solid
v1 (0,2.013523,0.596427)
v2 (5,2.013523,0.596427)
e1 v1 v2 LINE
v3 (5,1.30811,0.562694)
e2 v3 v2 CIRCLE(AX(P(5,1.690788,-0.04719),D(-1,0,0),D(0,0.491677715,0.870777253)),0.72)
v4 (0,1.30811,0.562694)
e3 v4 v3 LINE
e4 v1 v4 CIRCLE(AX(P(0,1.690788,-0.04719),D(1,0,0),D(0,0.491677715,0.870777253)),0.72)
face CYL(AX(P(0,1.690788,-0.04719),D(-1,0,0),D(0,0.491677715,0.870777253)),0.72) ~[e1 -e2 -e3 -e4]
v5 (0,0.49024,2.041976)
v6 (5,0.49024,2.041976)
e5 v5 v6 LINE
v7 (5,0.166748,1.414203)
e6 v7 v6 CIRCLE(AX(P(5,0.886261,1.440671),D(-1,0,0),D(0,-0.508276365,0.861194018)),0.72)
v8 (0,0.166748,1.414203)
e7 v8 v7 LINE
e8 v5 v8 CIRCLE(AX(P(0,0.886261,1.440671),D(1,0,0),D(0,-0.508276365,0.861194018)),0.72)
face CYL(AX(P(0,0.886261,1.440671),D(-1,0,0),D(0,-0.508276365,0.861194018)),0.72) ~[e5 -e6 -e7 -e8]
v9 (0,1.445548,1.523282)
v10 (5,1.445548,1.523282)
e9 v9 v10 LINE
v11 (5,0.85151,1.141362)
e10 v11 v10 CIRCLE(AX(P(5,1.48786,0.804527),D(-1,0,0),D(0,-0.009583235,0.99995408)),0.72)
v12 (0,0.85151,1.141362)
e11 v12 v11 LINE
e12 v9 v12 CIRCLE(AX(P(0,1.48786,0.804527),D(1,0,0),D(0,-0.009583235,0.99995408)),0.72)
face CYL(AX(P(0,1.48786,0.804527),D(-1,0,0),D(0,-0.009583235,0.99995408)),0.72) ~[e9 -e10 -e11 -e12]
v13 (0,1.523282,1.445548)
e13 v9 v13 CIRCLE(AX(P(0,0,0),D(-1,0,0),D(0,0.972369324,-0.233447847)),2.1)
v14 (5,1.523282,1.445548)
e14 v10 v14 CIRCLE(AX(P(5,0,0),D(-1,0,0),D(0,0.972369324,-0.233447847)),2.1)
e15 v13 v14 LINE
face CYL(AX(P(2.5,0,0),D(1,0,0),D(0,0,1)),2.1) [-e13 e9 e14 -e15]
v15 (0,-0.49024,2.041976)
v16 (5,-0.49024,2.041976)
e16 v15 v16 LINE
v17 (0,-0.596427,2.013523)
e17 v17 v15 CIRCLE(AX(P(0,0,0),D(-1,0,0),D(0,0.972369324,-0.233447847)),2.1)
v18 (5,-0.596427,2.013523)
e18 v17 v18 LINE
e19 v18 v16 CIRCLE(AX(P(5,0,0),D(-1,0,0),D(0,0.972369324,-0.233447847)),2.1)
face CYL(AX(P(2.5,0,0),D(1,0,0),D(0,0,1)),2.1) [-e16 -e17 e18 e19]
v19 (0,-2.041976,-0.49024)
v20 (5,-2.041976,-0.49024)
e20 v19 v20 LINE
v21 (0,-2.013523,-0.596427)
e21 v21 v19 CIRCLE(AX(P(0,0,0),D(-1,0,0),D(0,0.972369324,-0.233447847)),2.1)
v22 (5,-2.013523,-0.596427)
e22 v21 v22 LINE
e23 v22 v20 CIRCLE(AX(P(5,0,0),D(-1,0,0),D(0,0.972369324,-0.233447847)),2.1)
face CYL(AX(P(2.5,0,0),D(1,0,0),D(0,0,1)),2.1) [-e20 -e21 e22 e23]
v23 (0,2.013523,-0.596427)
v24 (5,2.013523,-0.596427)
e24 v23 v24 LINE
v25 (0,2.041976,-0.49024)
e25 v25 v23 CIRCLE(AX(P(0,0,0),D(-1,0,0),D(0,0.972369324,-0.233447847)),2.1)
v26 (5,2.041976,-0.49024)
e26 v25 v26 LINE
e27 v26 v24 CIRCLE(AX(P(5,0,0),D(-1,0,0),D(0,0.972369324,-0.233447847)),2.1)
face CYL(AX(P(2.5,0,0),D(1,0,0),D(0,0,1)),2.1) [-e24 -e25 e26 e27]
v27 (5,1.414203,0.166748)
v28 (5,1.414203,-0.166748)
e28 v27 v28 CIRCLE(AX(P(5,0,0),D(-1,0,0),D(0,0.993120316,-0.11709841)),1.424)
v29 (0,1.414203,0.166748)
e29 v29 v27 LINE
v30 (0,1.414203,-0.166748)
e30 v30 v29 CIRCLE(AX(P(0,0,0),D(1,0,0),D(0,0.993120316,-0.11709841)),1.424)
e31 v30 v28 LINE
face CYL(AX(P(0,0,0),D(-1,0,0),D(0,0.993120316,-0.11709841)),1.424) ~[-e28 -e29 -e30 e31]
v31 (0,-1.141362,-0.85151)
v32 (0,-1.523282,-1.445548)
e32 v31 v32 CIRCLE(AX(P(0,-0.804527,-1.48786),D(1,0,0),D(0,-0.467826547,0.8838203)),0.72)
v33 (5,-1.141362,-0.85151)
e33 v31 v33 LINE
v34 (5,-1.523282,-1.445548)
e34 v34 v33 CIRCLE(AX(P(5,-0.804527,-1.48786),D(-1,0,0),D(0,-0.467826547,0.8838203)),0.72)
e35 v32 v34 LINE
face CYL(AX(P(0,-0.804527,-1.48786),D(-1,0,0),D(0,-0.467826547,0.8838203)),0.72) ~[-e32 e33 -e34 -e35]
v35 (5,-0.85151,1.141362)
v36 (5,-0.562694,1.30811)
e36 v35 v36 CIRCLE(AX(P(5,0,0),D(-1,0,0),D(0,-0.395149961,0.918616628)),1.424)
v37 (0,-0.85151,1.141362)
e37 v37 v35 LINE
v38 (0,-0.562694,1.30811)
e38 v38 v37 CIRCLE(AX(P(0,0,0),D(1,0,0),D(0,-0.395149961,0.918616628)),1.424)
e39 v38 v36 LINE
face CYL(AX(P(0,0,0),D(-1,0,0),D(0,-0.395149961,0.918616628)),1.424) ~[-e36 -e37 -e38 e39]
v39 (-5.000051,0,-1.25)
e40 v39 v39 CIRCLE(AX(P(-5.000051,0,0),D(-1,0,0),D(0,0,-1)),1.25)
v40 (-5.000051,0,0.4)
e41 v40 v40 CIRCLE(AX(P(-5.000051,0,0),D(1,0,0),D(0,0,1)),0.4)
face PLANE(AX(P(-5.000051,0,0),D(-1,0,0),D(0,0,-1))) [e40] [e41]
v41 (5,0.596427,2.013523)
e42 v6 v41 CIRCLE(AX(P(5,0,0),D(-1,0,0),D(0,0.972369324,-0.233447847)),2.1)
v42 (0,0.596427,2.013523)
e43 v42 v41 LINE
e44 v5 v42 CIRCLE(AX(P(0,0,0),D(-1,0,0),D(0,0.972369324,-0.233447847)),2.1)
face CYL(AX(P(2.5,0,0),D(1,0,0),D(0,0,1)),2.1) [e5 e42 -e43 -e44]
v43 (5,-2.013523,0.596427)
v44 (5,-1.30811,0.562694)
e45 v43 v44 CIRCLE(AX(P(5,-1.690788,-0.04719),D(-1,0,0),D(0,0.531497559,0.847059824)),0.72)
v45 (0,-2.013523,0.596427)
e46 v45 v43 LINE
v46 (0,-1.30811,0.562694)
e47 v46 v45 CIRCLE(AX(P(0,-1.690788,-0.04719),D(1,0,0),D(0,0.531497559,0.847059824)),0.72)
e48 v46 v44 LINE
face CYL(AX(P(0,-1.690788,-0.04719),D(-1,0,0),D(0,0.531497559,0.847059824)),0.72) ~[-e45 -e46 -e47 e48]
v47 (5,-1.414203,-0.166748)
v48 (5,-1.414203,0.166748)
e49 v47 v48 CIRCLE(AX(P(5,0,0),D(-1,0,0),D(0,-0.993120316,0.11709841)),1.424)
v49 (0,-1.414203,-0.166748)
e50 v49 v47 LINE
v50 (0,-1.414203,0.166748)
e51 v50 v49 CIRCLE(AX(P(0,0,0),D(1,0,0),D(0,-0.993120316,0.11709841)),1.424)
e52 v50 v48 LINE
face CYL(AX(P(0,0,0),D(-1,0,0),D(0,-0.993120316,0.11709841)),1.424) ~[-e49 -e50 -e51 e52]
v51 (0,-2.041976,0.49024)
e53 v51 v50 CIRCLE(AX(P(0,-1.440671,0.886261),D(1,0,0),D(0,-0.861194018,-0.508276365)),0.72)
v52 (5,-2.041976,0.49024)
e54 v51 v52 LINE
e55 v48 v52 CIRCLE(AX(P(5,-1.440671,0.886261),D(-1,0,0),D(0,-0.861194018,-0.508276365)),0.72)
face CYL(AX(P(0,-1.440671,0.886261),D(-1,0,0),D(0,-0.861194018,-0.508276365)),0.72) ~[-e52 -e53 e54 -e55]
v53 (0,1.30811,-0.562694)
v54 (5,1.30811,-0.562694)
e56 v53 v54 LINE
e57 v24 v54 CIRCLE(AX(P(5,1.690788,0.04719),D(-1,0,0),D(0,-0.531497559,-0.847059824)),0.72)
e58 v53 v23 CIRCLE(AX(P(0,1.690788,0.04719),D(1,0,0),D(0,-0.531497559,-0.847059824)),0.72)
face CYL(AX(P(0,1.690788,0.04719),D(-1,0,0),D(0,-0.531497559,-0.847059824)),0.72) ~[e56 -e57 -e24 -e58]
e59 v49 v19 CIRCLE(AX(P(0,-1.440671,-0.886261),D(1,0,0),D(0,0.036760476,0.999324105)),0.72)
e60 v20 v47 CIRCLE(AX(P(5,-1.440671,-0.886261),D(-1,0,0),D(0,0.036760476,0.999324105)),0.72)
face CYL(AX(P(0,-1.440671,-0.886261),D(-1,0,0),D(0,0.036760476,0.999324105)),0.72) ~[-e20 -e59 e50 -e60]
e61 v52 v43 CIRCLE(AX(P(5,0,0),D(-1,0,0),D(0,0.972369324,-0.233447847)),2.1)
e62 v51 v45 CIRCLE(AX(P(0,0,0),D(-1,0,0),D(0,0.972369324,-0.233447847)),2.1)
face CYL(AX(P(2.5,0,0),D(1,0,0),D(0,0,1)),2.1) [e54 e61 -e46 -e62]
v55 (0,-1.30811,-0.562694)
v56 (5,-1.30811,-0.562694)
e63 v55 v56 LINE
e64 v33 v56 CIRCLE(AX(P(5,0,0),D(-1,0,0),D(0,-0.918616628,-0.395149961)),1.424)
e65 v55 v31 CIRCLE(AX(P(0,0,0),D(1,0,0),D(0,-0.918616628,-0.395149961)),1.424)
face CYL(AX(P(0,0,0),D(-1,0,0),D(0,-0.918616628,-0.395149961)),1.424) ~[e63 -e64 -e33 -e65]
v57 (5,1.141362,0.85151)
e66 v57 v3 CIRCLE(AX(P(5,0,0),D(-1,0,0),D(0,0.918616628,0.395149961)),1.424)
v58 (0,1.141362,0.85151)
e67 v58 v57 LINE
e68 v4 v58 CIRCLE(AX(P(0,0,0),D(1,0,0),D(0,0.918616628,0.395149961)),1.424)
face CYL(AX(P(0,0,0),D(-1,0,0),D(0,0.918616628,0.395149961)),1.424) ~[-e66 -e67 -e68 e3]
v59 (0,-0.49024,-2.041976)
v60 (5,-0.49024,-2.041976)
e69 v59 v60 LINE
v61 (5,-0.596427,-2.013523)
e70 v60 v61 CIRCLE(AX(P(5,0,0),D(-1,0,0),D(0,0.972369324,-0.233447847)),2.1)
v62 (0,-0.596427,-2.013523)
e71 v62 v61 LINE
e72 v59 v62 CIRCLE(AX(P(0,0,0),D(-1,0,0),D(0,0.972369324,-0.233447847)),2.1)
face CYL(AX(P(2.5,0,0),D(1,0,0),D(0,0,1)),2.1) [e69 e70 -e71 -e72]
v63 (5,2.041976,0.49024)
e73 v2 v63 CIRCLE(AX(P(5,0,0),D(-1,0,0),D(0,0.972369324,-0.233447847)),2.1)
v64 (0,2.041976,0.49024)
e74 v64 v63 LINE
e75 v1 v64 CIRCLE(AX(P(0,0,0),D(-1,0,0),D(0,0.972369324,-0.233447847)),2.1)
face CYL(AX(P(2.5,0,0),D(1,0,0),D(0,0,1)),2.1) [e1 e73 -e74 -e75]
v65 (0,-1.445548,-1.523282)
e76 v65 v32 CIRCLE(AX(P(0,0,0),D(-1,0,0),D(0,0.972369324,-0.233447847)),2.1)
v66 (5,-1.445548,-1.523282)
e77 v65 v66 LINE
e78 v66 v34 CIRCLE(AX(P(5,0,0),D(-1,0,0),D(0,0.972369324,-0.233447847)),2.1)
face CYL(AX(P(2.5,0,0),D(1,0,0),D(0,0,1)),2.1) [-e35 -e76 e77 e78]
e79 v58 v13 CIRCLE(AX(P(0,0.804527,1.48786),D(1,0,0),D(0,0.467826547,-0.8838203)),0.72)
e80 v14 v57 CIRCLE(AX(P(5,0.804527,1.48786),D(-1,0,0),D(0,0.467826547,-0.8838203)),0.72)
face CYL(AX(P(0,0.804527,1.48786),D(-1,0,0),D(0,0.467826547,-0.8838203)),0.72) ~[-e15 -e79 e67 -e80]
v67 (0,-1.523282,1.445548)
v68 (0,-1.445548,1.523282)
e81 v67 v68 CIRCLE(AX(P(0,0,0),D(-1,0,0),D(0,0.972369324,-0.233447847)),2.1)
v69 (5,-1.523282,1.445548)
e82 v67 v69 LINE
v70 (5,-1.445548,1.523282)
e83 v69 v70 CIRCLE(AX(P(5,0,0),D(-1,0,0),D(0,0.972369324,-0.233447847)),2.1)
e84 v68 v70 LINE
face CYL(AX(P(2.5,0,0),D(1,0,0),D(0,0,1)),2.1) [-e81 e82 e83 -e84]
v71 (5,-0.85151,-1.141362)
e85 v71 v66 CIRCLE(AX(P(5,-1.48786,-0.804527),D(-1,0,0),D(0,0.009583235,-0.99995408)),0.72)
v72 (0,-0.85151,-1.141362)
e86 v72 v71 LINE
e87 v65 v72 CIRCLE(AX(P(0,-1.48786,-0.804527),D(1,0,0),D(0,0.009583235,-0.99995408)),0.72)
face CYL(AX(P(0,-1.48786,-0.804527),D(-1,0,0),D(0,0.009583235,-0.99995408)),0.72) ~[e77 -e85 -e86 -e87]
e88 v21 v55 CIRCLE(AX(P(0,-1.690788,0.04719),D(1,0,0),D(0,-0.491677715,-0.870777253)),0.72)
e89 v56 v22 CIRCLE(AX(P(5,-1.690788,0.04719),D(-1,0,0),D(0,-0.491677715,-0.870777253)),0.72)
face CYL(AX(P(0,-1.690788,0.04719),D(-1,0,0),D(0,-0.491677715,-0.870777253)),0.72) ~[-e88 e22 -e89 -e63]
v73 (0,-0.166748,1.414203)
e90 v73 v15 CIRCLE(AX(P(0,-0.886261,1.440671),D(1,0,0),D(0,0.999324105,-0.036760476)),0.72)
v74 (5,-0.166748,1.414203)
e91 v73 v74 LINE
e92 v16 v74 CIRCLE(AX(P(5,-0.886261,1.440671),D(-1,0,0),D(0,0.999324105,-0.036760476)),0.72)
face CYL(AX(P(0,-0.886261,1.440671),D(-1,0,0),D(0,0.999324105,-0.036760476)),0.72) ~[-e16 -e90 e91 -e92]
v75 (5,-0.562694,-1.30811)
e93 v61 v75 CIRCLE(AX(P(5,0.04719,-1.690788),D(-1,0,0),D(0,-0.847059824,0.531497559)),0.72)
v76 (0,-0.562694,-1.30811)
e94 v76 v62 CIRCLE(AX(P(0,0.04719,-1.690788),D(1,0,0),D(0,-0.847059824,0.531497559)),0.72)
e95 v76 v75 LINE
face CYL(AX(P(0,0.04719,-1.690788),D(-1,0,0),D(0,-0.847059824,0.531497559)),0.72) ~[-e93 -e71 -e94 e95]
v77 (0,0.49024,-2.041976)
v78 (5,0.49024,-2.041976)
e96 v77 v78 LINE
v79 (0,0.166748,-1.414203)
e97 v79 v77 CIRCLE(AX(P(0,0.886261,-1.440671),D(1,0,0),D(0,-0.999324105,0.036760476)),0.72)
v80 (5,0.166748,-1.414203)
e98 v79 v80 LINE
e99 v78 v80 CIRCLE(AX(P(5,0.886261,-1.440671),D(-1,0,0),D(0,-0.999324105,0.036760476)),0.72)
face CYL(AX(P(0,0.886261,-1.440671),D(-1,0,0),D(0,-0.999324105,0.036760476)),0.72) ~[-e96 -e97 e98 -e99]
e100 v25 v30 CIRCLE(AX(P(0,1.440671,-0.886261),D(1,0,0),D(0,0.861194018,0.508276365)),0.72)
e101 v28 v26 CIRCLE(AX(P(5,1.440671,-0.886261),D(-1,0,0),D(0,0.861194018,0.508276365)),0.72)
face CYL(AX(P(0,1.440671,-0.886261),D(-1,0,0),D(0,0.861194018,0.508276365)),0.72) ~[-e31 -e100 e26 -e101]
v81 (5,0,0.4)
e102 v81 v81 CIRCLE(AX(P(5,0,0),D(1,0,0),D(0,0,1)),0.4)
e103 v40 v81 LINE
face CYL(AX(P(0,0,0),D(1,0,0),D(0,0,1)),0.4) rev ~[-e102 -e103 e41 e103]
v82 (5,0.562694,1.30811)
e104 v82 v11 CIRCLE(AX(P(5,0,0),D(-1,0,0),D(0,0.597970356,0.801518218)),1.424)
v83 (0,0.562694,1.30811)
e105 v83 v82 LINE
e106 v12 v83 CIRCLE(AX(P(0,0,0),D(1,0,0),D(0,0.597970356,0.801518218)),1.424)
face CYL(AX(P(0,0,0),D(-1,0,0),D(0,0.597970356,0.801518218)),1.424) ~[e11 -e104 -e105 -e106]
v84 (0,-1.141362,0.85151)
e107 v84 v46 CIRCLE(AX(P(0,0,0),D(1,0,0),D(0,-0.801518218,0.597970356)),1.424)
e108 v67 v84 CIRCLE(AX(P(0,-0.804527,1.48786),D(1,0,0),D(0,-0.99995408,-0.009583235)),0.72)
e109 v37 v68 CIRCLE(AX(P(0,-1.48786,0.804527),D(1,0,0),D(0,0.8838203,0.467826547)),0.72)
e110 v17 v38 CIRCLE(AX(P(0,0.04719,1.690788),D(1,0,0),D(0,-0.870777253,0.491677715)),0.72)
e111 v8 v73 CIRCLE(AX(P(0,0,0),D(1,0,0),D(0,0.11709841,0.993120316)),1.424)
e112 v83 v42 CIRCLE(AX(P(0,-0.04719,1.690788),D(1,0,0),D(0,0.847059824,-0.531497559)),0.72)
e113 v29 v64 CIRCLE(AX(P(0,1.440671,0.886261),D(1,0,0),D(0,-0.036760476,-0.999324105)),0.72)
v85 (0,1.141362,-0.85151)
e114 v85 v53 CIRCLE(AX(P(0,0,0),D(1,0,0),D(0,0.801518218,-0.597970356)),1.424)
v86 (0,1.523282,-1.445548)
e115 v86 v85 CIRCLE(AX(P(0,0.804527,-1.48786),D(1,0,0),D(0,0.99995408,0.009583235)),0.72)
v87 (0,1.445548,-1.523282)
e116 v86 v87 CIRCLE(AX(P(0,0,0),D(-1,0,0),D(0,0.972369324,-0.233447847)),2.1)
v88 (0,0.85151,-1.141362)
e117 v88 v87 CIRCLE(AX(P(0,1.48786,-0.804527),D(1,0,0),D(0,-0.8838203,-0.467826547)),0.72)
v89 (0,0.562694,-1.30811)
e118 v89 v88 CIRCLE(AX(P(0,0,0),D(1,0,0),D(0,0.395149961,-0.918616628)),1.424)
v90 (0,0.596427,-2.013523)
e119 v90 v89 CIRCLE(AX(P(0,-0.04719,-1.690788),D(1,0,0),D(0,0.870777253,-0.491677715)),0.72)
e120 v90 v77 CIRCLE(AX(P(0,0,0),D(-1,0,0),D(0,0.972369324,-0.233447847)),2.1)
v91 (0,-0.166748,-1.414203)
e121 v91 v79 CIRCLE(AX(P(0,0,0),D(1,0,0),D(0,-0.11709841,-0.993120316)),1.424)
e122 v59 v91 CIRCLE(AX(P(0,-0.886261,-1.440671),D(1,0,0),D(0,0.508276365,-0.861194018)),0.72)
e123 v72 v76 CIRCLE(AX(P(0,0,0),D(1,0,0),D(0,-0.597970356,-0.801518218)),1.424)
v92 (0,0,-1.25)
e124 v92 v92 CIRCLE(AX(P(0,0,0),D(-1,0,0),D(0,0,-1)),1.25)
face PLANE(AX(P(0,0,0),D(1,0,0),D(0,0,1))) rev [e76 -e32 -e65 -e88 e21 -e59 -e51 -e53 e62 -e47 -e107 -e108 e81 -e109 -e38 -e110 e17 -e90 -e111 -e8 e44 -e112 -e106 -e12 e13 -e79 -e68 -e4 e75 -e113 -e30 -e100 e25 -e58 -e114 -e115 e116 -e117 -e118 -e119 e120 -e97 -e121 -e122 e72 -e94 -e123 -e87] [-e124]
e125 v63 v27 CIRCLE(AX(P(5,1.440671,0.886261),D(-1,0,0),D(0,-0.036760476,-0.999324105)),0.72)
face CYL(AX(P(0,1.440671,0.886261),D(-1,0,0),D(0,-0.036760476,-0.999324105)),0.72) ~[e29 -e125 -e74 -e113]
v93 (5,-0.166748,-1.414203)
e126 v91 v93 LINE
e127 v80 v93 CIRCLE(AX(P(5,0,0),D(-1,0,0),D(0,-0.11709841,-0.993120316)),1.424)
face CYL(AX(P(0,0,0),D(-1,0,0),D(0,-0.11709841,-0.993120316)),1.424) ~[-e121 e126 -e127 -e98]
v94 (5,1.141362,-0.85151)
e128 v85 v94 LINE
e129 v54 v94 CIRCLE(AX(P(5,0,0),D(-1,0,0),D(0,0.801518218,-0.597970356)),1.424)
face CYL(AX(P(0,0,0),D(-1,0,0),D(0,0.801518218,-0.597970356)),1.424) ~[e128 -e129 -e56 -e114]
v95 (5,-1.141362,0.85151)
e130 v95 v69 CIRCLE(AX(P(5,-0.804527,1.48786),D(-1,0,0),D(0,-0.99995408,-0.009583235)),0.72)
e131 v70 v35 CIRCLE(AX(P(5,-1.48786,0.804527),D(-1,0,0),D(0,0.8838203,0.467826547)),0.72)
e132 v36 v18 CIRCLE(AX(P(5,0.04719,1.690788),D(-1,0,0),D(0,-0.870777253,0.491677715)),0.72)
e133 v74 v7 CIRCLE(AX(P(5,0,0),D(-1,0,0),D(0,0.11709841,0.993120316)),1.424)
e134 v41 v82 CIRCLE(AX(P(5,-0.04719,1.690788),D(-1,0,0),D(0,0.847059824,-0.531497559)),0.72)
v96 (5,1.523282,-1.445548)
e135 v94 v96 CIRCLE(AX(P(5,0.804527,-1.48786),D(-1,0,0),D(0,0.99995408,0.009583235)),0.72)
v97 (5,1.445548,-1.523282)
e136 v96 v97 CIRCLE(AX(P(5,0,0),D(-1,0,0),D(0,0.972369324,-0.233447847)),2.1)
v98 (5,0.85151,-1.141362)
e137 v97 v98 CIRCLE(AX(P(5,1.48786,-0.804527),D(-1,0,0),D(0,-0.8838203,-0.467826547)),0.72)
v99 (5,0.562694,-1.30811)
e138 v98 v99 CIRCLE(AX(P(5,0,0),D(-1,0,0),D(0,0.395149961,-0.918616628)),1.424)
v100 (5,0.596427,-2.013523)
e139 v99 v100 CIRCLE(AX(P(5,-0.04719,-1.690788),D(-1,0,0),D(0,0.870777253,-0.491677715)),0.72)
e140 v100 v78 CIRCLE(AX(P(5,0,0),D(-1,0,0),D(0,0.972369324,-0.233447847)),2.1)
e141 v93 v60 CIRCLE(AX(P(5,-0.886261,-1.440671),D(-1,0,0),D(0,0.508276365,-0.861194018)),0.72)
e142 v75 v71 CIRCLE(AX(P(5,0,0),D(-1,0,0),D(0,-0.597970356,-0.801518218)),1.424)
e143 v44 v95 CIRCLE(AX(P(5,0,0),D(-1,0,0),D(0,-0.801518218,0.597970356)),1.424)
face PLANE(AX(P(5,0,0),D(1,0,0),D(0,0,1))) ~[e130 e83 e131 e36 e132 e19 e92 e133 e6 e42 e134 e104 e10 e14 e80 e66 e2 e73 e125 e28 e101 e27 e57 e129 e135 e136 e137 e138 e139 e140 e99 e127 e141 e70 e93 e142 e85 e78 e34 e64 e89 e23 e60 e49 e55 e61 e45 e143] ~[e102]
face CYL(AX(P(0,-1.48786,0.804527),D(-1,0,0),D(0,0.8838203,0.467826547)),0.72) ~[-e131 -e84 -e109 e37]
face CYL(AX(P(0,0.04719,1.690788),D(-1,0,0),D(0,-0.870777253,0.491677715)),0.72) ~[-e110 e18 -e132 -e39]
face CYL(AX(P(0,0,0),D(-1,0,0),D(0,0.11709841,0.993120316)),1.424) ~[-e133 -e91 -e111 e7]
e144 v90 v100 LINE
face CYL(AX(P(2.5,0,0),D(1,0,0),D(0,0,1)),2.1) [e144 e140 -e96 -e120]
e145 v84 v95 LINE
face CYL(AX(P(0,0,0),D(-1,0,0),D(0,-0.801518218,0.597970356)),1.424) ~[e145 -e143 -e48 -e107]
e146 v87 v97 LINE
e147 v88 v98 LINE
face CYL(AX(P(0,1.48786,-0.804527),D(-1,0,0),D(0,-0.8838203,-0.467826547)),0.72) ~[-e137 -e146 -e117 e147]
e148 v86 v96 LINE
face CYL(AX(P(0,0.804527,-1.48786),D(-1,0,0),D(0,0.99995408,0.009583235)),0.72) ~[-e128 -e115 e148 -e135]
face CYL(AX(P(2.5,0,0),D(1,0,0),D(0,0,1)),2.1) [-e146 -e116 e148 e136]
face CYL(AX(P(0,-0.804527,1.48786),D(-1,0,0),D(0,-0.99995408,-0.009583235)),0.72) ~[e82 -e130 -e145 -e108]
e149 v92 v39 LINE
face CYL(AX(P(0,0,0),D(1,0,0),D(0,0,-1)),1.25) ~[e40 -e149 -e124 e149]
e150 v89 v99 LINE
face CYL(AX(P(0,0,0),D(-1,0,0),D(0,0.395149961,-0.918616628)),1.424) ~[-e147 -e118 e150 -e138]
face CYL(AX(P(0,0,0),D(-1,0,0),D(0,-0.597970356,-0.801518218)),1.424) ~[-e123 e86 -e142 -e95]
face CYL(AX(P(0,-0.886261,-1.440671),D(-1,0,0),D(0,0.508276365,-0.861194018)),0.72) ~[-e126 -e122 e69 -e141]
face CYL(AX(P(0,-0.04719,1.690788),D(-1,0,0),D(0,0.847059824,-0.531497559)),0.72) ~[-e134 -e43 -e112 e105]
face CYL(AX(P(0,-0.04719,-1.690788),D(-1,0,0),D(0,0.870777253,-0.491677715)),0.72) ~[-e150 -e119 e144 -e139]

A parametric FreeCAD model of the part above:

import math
import FreeCAD as App
import Part
import Sketcher

V = App.Vector


def add_polygon(sketch, points):
    """Adds a closed chain of lines whose ends are joined by coincident constraints."""
    first, n = sketch.GeometryCount, len(points)
    for a, b in zip(points, points[1:] + points[:1]):
        sketch.addGeometry(Part.LineSegment(App.Vector(*a, 0), App.Vector(*b, 0)), False)
    for i in range(n):
        sketch.addConstraint(Sketcher.Constraint("Coincident", first + i, 2, first + (i + 1) % n, 1))

doc = App.newDocument("Part")
body = doc.addObject("PartDesign::Body", "Body")

# Sketch on XZ plane
sketch1 = doc.addObject("Sketcher::SketchObject", "Sketch")
body.addObject(sketch1)
sketch1.AttachmentSupport = (doc.XZ_Plane, [""])
sketch1.MapMode = "FlatFace"
add_polygon(sketch1, [(0, -2.1), (0, 0), (5, 0), (5, -2.1)])  # lines 0-3
sketch1.addConstraint(Sketcher.Constraint("Vertical", 0))
sketch1.addConstraint(Sketcher.Constraint("Horizontal", 1))
sketch1.addConstraint(Sketcher.Constraint("Vertical", 2))
sketch1.addConstraint(Sketcher.Constraint("Horizontal", 3))
sketch1.addConstraint(Sketcher.Constraint("Coincident", 0, 2, -1, 1))
sketch1.addConstraint(Sketcher.Constraint("DistanceX", 1, 1, 1, 2, 5.0))
sketch1.addConstraint(Sketcher.Constraint("DistanceY", 0, 1, 0, 2, 2.1))
revolution = doc.addObject("PartDesign::Revolution", "Revolution")
body.addObject(revolution)
revolution.Profile = sketch1
revolution.ReferenceAxis = (sketch1, ["H_Axis"])
revolution.Angle = 360

# Sketch on YZ plane
sketch2 = doc.addObject("Sketcher::SketchObject", "Sketch001")
body.addObject(sketch2)
sketch2.AttachmentSupport = (doc.YZ_Plane, [""])
sketch2.MapMode = "FlatFace"
sketch2.addGeometry(Part.ArcOfCircle(Part.Circle(V(0, 0, 0), V(0, 0, 1), 1.424), math.radians(-6.724673), math.radians(6.724673)), False)
sketch2.addGeometry(Part.ArcOfCircle(Part.Circle(V(1.440671, -0.886261, 0), V(0, 0, 1), 0.72), math.radians(30.549087), math.radians(92.106695)), False)
sketch2.addGeometry(Part.ArcOfCircle(Part.Circle(V(0, 0, 0), V(0, 0, 1), 2.1254), math.radians(-14.170142), math.radians(14.170142)), False)
sketch2.addGeometry(Part.ArcOfCircle(Part.Circle(V(1.440671, 0.886261, 0), V(0, 0, 1), 0.72), math.radians(-92.106695), math.radians(-30.549087)), False)
sketch2.addConstraint(Sketcher.Constraint("Coincident", 0, 1, 1, 2))
sketch2.addConstraint(Sketcher.Constraint("Coincident", 1, 1, 2, 1))
sketch2.addConstraint(Sketcher.Constraint("Coincident", 2, 2, 3, 2))
sketch2.addConstraint(Sketcher.Constraint("Coincident", 3, 1, 0, 2))
sketch2.addConstraint(Sketcher.Constraint("Coincident", 0, 3, -1, 1))
sketch2.addConstraint(Sketcher.Constraint("Coincident", 2, 3, -1, 1))
sketch2.addConstraint(Sketcher.Constraint("Equal", 1, 3))
sketch2.addConstraint(Sketcher.Constraint("Symmetric", 1, 3, 3, 3, -1))
sketch2.addConstraint(Sketcher.Constraint("Radius", 1, 0.72))
sketch2.addConstraint(Sketcher.Constraint("Radius", 0, 1.424))
sketch2.addConstraint(Sketcher.Constraint("Radius", 2, 2.1254))
sketch2.addConstraint(Sketcher.Constraint("DistanceX", -1, 1, 1, 3, 1.440671))
sketch2.addConstraint(Sketcher.Constraint("DistanceY", 1, 3, -1, 1, 0.886261))
pocket1 = doc.addObject("PartDesign::Pocket", "Pocket")
body.addObject(pocket1)
pocket1.Profile = sketch2
pocket1.Type = "ThroughAll"
pocket1.Reversed = True
doc.recompute()

polarpattern = doc.addObject("PartDesign::PolarPattern", "PolarPattern")
body.addObject(polarpattern)
polarpattern.Originals = [pocket1]
polarpattern.Axis = (doc.X_Axis, [""])
polarpattern.Angle = 360
polarpattern.Occurrences = 12
body.Tip = polarpattern

# Sketch on YZ plane
sketch3 = doc.addObject("Sketcher::SketchObject", "Sketch002")
body.addObject(sketch3)
sketch3.AttachmentSupport = (doc.YZ_Plane, [""])
sketch3.MapMode = "FlatFace"
sketch3.addGeometry(Part.Circle(V(0, 0, 0), V(0, 0, 1), 1.25), False)
sketch3.addConstraint(Sketcher.Constraint("Coincident", 0, 3, -1, 1))
sketch3.addConstraint(Sketcher.Constraint("Diameter", 0, 2.5))
pad1 = doc.addObject("PartDesign::Pad", "Pad")
body.addObject(pad1)
pad1.Profile = sketch3
pad1.Length = 5.000051
pad1.Reversed = True

# Sketch on YZ plane
sketch4 = doc.addObject("Sketcher::SketchObject", "Sketch003")
body.addObject(sketch4)
sketch4.AttachmentSupport = (doc.YZ_Plane, [""])
sketch4.MapMode = "FlatFace"
sketch4.addGeometry(Part.Circle(V(0, 0, 0), V(0, 0, 1), 0.4), False)
sketch4.addConstraint(Sketcher.Constraint("Coincident", 0, 3, -1, 1))
sketch4.addConstraint(Sketcher.Constraint("Diameter", 0, 0.8))
pocket2 = doc.addObject("PartDesign::Pocket", "Pocket001")
body.addObject(pocket2)
pocket2.Profile = sketch4
pocket2.Length = 20.000102
pocket2.Midplane = True

doc.recompute()
